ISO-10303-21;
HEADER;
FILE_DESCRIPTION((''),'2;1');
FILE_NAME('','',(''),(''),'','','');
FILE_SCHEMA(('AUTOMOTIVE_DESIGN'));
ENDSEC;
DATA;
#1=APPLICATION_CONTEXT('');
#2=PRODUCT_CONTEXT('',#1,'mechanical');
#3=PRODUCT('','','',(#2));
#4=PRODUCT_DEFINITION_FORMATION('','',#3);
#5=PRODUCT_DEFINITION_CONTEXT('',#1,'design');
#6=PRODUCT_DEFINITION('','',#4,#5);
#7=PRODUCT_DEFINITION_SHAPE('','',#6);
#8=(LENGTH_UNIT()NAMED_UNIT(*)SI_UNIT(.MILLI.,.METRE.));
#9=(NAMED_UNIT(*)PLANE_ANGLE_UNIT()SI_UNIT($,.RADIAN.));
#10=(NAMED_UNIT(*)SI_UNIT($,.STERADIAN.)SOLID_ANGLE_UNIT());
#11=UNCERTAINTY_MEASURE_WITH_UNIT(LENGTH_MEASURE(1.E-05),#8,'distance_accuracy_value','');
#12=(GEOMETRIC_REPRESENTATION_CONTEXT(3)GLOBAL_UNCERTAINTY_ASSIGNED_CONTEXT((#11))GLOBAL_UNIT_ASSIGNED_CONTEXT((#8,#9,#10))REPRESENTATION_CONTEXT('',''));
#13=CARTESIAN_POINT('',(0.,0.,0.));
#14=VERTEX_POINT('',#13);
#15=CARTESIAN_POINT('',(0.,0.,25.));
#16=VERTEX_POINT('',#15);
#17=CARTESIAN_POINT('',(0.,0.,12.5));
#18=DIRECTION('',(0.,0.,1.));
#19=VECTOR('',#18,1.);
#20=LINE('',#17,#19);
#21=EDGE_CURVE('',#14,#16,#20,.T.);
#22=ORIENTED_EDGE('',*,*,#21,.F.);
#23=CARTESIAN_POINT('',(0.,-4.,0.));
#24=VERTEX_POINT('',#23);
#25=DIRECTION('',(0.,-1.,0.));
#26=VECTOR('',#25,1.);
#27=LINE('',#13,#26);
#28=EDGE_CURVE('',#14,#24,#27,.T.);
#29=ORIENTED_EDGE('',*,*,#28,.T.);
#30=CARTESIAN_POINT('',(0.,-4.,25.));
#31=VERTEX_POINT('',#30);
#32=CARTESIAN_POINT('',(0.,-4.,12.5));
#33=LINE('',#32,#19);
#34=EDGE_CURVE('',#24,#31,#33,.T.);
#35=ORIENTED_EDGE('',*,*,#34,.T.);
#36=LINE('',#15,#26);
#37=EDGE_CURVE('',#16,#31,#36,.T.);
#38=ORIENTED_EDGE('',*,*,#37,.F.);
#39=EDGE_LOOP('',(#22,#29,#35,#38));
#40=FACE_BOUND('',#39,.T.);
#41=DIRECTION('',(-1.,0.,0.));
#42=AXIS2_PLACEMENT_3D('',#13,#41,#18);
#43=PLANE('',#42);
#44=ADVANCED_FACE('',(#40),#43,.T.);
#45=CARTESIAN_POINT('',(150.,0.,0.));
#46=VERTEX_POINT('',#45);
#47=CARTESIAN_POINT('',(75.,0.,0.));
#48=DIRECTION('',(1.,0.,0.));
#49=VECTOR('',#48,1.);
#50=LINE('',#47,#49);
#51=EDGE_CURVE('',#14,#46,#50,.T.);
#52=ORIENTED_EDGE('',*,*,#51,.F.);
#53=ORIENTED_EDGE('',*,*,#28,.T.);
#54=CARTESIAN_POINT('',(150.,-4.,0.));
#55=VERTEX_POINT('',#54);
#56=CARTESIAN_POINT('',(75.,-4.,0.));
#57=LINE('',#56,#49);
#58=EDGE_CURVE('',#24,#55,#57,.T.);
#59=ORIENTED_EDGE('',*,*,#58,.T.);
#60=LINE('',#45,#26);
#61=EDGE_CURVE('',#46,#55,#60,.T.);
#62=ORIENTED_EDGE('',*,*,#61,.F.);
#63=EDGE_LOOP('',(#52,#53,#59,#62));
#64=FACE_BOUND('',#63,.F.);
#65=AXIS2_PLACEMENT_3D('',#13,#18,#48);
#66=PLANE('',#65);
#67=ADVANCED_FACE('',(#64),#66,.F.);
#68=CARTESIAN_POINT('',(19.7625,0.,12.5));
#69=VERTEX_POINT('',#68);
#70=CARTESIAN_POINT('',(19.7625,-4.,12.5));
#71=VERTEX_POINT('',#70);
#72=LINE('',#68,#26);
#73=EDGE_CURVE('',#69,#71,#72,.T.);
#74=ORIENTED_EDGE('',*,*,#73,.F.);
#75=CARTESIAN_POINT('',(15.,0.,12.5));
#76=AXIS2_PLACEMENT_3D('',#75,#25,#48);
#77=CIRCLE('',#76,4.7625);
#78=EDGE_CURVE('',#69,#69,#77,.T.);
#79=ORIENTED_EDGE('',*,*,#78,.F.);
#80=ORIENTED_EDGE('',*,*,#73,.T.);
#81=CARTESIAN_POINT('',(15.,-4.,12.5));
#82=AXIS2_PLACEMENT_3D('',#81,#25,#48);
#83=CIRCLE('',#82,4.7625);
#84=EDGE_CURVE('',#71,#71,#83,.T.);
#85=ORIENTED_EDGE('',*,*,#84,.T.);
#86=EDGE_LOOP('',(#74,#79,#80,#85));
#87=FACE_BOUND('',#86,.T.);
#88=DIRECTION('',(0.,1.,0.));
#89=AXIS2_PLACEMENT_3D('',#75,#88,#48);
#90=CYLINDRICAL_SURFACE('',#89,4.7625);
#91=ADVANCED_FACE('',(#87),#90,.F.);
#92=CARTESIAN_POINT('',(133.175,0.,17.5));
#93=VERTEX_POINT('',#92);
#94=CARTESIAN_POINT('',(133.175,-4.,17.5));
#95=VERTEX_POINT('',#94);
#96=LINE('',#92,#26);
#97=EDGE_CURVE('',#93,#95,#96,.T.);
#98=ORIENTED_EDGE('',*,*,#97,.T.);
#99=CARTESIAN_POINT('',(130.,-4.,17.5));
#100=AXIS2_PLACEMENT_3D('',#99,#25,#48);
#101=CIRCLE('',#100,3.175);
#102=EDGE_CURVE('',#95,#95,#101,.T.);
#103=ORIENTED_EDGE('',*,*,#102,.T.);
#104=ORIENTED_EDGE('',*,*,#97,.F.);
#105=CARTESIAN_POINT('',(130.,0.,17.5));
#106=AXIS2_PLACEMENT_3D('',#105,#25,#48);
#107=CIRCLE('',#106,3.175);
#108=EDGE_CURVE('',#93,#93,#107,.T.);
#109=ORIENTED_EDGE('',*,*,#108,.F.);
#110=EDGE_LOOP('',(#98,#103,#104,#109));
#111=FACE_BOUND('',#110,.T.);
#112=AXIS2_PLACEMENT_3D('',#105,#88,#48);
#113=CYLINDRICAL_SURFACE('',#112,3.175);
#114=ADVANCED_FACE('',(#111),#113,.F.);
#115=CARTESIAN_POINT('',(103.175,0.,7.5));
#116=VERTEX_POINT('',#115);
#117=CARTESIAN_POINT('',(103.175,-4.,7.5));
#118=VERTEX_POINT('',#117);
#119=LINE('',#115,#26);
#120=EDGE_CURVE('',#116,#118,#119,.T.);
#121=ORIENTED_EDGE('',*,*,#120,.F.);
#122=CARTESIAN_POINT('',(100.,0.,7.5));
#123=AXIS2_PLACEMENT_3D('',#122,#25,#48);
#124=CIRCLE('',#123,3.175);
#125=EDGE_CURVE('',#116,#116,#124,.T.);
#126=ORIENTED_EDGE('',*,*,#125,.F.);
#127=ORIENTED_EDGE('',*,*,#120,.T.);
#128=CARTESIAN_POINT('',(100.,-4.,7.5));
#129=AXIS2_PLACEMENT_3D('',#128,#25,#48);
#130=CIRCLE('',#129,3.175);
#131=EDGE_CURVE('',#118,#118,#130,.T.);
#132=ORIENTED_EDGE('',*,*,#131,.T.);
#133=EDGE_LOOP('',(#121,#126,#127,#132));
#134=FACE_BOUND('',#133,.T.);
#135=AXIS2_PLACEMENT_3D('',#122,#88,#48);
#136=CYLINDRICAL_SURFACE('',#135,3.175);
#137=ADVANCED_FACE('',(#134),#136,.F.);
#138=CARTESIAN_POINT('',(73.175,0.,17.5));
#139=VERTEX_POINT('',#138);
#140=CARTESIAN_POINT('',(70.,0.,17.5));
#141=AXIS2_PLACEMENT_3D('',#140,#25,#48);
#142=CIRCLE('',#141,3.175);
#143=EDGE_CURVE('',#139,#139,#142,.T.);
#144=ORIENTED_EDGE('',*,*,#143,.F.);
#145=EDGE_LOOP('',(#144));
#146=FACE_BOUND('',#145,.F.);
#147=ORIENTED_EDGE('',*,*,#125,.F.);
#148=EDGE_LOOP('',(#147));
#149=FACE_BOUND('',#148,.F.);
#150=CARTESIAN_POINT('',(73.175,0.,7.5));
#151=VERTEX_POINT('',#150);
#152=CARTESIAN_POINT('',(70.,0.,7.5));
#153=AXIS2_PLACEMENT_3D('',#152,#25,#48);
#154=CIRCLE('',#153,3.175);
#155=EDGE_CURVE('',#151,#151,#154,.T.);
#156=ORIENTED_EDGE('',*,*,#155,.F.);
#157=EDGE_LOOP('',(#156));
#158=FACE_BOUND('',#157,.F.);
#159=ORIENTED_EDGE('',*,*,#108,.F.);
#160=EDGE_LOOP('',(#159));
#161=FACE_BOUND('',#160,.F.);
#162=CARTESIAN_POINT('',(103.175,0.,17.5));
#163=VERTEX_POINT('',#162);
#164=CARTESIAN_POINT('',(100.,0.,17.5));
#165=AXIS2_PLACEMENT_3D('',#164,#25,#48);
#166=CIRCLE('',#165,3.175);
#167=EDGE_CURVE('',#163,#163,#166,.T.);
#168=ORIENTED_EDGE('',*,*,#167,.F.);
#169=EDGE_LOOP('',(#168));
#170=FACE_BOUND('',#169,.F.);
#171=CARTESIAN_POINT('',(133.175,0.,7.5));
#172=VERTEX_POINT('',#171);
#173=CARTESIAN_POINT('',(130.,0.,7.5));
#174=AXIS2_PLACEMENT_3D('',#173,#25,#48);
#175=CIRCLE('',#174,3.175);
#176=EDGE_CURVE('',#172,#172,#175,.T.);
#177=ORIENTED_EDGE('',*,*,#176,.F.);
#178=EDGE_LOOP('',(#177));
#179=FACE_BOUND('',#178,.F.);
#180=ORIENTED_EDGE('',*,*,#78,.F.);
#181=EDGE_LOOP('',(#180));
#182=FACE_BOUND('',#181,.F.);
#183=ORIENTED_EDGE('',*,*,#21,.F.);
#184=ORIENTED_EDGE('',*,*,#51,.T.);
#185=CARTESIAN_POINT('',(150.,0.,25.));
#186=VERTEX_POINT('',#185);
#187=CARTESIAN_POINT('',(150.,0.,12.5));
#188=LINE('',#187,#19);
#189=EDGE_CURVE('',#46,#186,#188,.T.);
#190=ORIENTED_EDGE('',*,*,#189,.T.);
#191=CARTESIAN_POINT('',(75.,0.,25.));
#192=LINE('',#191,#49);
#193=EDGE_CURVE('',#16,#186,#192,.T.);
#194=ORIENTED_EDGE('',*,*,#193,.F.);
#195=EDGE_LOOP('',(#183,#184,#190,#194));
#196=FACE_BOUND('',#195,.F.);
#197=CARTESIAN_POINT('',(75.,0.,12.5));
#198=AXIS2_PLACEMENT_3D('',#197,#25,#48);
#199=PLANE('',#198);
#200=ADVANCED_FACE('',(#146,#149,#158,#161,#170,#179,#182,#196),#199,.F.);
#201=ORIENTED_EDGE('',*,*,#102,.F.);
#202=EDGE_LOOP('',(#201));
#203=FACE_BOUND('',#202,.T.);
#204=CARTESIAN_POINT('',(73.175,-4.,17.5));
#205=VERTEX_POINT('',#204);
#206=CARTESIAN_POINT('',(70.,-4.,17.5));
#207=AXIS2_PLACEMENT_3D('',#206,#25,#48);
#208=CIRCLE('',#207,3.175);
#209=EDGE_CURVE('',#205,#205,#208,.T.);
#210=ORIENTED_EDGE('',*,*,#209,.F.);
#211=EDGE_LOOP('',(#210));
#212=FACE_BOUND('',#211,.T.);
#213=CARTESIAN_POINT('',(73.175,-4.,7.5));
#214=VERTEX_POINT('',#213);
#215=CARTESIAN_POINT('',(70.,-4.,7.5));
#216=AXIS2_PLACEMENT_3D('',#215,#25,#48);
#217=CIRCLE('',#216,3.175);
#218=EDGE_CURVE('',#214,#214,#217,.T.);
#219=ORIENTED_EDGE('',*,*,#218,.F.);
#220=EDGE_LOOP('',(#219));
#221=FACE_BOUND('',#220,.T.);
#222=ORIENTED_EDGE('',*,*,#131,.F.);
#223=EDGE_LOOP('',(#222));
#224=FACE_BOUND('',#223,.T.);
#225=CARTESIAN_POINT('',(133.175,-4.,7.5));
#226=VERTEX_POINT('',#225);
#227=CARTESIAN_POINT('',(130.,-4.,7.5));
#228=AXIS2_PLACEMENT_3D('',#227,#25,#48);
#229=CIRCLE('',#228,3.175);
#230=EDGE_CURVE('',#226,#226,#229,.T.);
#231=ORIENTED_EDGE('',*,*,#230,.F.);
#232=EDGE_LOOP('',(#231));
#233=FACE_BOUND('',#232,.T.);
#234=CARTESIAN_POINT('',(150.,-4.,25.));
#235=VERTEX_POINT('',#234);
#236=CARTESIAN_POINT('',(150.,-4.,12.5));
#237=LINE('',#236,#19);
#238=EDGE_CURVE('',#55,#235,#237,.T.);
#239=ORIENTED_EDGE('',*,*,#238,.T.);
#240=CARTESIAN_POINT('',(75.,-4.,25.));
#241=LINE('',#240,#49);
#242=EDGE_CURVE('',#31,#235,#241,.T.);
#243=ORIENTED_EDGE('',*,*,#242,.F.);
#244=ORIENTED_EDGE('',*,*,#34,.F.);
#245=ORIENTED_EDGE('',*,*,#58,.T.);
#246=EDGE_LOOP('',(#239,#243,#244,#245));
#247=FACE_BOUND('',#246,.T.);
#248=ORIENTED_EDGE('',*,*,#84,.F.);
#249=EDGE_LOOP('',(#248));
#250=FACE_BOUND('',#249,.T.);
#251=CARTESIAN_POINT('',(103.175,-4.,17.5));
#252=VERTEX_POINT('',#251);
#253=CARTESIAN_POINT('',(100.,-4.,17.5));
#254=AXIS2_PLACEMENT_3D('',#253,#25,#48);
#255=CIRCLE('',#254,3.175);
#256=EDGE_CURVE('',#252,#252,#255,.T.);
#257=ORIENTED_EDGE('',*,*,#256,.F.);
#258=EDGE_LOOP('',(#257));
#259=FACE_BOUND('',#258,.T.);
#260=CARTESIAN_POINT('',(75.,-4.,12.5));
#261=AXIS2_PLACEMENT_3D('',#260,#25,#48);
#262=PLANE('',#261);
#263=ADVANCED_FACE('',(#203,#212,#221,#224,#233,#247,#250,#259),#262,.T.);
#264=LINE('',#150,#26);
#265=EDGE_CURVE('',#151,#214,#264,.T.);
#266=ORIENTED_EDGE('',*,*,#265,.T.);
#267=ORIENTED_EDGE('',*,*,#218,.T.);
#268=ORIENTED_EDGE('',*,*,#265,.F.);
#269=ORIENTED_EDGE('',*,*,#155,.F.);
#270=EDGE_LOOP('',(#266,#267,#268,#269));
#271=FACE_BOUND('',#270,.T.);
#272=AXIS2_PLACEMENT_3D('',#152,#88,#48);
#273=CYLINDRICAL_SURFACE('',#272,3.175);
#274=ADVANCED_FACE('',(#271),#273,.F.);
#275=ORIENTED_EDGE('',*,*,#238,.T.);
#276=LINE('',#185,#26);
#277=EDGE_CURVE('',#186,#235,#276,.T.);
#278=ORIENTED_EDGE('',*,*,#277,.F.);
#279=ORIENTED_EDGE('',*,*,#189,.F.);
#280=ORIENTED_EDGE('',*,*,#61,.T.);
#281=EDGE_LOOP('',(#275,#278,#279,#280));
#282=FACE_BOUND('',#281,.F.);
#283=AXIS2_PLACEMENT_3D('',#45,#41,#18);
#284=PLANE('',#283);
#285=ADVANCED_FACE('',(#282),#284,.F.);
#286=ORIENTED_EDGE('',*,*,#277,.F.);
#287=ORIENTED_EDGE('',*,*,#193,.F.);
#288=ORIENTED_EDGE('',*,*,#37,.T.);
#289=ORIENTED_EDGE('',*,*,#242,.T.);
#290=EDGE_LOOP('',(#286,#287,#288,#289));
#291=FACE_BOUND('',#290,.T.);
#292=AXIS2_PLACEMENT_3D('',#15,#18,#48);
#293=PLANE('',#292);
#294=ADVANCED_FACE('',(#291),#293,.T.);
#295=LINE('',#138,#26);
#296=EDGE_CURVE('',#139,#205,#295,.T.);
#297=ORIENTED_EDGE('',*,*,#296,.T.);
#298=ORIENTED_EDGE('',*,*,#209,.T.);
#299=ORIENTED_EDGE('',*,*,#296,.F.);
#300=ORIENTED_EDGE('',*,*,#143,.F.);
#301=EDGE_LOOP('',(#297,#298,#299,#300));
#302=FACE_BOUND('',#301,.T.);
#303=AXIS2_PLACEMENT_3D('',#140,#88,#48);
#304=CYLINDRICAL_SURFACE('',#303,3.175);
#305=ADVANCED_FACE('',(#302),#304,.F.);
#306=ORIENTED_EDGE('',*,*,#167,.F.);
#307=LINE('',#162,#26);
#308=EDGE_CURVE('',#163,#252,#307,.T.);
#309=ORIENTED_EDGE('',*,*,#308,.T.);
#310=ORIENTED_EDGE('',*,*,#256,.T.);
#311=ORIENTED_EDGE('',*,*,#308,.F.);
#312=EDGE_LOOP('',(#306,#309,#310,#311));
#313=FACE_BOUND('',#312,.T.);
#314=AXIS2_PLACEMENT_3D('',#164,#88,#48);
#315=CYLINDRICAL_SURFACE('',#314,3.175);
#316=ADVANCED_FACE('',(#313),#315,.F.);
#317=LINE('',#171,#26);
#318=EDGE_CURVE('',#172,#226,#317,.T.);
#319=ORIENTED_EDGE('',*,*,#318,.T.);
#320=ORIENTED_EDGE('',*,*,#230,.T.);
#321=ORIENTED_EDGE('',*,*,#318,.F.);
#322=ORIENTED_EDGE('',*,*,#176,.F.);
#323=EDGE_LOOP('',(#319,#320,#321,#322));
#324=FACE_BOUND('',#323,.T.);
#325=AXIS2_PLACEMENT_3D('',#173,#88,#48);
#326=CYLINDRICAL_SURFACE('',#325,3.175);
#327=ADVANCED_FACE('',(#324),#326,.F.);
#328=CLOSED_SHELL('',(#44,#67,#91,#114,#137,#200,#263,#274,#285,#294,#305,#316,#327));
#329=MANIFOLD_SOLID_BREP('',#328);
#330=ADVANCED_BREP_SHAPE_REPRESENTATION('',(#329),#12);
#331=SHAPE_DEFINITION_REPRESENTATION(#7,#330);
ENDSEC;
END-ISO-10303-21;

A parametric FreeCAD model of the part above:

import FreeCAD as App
import Part
import Sketcher

doc = App.newDocument("Part")
body = doc.addObject("PartDesign::Body", "Body")

# Sketch on XZ plane
sketch1 = body.newObject("Sketcher::SketchObject", "Sketch")
sketch1.AttachmentSupport = (doc.getObject("XZ_Plane"), [""])
sketch1.MapMode = "FlatFace"
sketch1.addGeometry(Part.LineSegment(App.Vector(0, 25, 0), App.Vector(0, 0, 0)), False)
sketch1.addGeometry(Part.LineSegment(App.Vector(0, 0, 0), App.Vector(150, 0, 0)), False)
sketch1.addGeometry(Part.LineSegment(App.Vector(150, 0, 0), App.Vector(150, 25, 0)), False)
sketch1.addGeometry(Part.LineSegment(App.Vector(150, 25, 0), App.Vector(0, 25, 0)), False)
sketch1.addGeometry(Part.Circle(App.Vector(70, 7.5, 0), App.Vector(0, 0, 1), 3.175), False)
sketch1.addGeometry(Part.Circle(App.Vector(100, 7.5, 0), App.Vector(0, 0, 1), 3.175), False)
sketch1.addGeometry(Part.Circle(App.Vector(130, 7.5, 0), App.Vector(0, 0, 1), 3.175), False)
sketch1.addGeometry(Part.Circle(App.Vector(15, 12.5, 0), App.Vector(0, 0, 1), 4.7625), False)
sketch1.addGeometry(Part.Circle(App.Vector(70, 17.5, 0), App.Vector(0, 0, 1), 3.175), False)
sketch1.addGeometry(Part.Circle(App.Vector(100, 17.5, 0), App.Vector(0, 0, 1), 3.175), False)
sketch1.addGeometry(Part.Circle(App.Vector(130, 17.5, 0), App.Vector(0, 0, 1), 3.175), False)
sketch1.addConstraint(Sketcher.Constraint("Coincident", 0, 2, 1, 1))
sketch1.addConstraint(Sketcher.Constraint("Coincident", 1, 2, 2, 1))
sketch1.addConstraint(Sketcher.Constraint("Coincident", 2, 2, 3, 1))
sketch1.addConstraint(Sketcher.Constraint("Coincident", 3, 2, 0, 1))
sketch1.addConstraint(Sketcher.Constraint("Vertical", 0))
sketch1.addConstraint(Sketcher.Constraint("Horizontal", 1))
sketch1.addConstraint(Sketcher.Constraint("Vertical", 2))
sketch1.addConstraint(Sketcher.Constraint("Horizontal", 3))
sketch1.addConstraint(Sketcher.Constraint("Coincident", 0, 2, -1, 1))
sketch1.addConstraint(Sketcher.Constraint("Equal", 4, 5))
sketch1.addConstraint(Sketcher.Constraint("Equal", 5, 6))
sketch1.addConstraint(Sketcher.Constraint("Equal", 6, 8))
sketch1.addConstraint(Sketcher.Constraint("Equal", 8, 9))
sketch1.addConstraint(Sketcher.Constraint("Equal", 9, 10))
sketch1.addConstraint(Sketcher.Constraint("Horizontal", 4, 3, 5, 3))
sketch1.addConstraint(Sketcher.Constraint("Horizontal", 5, 3, 6, 3))
sketch1.addConstraint(Sketcher.Constraint("Horizontal", 8, 3, 9, 3))
sketch1.addConstraint(Sketcher.Constraint("Horizontal", 9, 3, 10, 3))
sketch1.addConstraint(Sketcher.Constraint("Vertical", 4, 3, 8, 3))
sketch1.addConstraint(Sketcher.Constraint("Vertical", 5, 3, 9, 3))
sketch1.addConstraint(Sketcher.Constraint("Vertical", 6, 3, 10, 3))
sketch1.addConstraint(Sketcher.Constraint("Diameter", 4, 6.35))
sketch1.addConstraint(Sketcher.Constraint("DistanceX", 1, 1, 1, 2, 150.0))
sketch1.addConstraint(Sketcher.Constraint("DistanceY", 0, 2, 0, 1, 25.0))
sketch1.addConstraint(Sketcher.Constraint("Diameter", 7, 9.525))
sketch1.addConstraint(Sketcher.Constraint("DistanceX", -1, 1, 4, 3, 70.0))
sketch1.addConstraint(Sketcher.Constraint("DistanceX", -1, 1, 5, 3, 100.0))
sketch1.addConstraint(Sketcher.Constraint("DistanceX", -1, 1, 6, 3, 130.0))
sketch1.addConstraint(Sketcher.Constraint("DistanceX", -1, 1, 7, 3, 15.0))
sketch1.addConstraint(Sketcher.Constraint("DistanceY", 4, 3, 7, 3, 5.0))
sketch1.addConstraint(Sketcher.Constraint("DistanceY", 4, 3, 8, 3, 10.0))
sketch1.addConstraint(Sketcher.Constraint("DistanceY", -1, 1, 4, 3, 7.5))
pad1 = body.newObject("PartDesign::Pad", "Pad")
pad1.Profile = sketch1
pad1.Length = 4

doc.recompute()
